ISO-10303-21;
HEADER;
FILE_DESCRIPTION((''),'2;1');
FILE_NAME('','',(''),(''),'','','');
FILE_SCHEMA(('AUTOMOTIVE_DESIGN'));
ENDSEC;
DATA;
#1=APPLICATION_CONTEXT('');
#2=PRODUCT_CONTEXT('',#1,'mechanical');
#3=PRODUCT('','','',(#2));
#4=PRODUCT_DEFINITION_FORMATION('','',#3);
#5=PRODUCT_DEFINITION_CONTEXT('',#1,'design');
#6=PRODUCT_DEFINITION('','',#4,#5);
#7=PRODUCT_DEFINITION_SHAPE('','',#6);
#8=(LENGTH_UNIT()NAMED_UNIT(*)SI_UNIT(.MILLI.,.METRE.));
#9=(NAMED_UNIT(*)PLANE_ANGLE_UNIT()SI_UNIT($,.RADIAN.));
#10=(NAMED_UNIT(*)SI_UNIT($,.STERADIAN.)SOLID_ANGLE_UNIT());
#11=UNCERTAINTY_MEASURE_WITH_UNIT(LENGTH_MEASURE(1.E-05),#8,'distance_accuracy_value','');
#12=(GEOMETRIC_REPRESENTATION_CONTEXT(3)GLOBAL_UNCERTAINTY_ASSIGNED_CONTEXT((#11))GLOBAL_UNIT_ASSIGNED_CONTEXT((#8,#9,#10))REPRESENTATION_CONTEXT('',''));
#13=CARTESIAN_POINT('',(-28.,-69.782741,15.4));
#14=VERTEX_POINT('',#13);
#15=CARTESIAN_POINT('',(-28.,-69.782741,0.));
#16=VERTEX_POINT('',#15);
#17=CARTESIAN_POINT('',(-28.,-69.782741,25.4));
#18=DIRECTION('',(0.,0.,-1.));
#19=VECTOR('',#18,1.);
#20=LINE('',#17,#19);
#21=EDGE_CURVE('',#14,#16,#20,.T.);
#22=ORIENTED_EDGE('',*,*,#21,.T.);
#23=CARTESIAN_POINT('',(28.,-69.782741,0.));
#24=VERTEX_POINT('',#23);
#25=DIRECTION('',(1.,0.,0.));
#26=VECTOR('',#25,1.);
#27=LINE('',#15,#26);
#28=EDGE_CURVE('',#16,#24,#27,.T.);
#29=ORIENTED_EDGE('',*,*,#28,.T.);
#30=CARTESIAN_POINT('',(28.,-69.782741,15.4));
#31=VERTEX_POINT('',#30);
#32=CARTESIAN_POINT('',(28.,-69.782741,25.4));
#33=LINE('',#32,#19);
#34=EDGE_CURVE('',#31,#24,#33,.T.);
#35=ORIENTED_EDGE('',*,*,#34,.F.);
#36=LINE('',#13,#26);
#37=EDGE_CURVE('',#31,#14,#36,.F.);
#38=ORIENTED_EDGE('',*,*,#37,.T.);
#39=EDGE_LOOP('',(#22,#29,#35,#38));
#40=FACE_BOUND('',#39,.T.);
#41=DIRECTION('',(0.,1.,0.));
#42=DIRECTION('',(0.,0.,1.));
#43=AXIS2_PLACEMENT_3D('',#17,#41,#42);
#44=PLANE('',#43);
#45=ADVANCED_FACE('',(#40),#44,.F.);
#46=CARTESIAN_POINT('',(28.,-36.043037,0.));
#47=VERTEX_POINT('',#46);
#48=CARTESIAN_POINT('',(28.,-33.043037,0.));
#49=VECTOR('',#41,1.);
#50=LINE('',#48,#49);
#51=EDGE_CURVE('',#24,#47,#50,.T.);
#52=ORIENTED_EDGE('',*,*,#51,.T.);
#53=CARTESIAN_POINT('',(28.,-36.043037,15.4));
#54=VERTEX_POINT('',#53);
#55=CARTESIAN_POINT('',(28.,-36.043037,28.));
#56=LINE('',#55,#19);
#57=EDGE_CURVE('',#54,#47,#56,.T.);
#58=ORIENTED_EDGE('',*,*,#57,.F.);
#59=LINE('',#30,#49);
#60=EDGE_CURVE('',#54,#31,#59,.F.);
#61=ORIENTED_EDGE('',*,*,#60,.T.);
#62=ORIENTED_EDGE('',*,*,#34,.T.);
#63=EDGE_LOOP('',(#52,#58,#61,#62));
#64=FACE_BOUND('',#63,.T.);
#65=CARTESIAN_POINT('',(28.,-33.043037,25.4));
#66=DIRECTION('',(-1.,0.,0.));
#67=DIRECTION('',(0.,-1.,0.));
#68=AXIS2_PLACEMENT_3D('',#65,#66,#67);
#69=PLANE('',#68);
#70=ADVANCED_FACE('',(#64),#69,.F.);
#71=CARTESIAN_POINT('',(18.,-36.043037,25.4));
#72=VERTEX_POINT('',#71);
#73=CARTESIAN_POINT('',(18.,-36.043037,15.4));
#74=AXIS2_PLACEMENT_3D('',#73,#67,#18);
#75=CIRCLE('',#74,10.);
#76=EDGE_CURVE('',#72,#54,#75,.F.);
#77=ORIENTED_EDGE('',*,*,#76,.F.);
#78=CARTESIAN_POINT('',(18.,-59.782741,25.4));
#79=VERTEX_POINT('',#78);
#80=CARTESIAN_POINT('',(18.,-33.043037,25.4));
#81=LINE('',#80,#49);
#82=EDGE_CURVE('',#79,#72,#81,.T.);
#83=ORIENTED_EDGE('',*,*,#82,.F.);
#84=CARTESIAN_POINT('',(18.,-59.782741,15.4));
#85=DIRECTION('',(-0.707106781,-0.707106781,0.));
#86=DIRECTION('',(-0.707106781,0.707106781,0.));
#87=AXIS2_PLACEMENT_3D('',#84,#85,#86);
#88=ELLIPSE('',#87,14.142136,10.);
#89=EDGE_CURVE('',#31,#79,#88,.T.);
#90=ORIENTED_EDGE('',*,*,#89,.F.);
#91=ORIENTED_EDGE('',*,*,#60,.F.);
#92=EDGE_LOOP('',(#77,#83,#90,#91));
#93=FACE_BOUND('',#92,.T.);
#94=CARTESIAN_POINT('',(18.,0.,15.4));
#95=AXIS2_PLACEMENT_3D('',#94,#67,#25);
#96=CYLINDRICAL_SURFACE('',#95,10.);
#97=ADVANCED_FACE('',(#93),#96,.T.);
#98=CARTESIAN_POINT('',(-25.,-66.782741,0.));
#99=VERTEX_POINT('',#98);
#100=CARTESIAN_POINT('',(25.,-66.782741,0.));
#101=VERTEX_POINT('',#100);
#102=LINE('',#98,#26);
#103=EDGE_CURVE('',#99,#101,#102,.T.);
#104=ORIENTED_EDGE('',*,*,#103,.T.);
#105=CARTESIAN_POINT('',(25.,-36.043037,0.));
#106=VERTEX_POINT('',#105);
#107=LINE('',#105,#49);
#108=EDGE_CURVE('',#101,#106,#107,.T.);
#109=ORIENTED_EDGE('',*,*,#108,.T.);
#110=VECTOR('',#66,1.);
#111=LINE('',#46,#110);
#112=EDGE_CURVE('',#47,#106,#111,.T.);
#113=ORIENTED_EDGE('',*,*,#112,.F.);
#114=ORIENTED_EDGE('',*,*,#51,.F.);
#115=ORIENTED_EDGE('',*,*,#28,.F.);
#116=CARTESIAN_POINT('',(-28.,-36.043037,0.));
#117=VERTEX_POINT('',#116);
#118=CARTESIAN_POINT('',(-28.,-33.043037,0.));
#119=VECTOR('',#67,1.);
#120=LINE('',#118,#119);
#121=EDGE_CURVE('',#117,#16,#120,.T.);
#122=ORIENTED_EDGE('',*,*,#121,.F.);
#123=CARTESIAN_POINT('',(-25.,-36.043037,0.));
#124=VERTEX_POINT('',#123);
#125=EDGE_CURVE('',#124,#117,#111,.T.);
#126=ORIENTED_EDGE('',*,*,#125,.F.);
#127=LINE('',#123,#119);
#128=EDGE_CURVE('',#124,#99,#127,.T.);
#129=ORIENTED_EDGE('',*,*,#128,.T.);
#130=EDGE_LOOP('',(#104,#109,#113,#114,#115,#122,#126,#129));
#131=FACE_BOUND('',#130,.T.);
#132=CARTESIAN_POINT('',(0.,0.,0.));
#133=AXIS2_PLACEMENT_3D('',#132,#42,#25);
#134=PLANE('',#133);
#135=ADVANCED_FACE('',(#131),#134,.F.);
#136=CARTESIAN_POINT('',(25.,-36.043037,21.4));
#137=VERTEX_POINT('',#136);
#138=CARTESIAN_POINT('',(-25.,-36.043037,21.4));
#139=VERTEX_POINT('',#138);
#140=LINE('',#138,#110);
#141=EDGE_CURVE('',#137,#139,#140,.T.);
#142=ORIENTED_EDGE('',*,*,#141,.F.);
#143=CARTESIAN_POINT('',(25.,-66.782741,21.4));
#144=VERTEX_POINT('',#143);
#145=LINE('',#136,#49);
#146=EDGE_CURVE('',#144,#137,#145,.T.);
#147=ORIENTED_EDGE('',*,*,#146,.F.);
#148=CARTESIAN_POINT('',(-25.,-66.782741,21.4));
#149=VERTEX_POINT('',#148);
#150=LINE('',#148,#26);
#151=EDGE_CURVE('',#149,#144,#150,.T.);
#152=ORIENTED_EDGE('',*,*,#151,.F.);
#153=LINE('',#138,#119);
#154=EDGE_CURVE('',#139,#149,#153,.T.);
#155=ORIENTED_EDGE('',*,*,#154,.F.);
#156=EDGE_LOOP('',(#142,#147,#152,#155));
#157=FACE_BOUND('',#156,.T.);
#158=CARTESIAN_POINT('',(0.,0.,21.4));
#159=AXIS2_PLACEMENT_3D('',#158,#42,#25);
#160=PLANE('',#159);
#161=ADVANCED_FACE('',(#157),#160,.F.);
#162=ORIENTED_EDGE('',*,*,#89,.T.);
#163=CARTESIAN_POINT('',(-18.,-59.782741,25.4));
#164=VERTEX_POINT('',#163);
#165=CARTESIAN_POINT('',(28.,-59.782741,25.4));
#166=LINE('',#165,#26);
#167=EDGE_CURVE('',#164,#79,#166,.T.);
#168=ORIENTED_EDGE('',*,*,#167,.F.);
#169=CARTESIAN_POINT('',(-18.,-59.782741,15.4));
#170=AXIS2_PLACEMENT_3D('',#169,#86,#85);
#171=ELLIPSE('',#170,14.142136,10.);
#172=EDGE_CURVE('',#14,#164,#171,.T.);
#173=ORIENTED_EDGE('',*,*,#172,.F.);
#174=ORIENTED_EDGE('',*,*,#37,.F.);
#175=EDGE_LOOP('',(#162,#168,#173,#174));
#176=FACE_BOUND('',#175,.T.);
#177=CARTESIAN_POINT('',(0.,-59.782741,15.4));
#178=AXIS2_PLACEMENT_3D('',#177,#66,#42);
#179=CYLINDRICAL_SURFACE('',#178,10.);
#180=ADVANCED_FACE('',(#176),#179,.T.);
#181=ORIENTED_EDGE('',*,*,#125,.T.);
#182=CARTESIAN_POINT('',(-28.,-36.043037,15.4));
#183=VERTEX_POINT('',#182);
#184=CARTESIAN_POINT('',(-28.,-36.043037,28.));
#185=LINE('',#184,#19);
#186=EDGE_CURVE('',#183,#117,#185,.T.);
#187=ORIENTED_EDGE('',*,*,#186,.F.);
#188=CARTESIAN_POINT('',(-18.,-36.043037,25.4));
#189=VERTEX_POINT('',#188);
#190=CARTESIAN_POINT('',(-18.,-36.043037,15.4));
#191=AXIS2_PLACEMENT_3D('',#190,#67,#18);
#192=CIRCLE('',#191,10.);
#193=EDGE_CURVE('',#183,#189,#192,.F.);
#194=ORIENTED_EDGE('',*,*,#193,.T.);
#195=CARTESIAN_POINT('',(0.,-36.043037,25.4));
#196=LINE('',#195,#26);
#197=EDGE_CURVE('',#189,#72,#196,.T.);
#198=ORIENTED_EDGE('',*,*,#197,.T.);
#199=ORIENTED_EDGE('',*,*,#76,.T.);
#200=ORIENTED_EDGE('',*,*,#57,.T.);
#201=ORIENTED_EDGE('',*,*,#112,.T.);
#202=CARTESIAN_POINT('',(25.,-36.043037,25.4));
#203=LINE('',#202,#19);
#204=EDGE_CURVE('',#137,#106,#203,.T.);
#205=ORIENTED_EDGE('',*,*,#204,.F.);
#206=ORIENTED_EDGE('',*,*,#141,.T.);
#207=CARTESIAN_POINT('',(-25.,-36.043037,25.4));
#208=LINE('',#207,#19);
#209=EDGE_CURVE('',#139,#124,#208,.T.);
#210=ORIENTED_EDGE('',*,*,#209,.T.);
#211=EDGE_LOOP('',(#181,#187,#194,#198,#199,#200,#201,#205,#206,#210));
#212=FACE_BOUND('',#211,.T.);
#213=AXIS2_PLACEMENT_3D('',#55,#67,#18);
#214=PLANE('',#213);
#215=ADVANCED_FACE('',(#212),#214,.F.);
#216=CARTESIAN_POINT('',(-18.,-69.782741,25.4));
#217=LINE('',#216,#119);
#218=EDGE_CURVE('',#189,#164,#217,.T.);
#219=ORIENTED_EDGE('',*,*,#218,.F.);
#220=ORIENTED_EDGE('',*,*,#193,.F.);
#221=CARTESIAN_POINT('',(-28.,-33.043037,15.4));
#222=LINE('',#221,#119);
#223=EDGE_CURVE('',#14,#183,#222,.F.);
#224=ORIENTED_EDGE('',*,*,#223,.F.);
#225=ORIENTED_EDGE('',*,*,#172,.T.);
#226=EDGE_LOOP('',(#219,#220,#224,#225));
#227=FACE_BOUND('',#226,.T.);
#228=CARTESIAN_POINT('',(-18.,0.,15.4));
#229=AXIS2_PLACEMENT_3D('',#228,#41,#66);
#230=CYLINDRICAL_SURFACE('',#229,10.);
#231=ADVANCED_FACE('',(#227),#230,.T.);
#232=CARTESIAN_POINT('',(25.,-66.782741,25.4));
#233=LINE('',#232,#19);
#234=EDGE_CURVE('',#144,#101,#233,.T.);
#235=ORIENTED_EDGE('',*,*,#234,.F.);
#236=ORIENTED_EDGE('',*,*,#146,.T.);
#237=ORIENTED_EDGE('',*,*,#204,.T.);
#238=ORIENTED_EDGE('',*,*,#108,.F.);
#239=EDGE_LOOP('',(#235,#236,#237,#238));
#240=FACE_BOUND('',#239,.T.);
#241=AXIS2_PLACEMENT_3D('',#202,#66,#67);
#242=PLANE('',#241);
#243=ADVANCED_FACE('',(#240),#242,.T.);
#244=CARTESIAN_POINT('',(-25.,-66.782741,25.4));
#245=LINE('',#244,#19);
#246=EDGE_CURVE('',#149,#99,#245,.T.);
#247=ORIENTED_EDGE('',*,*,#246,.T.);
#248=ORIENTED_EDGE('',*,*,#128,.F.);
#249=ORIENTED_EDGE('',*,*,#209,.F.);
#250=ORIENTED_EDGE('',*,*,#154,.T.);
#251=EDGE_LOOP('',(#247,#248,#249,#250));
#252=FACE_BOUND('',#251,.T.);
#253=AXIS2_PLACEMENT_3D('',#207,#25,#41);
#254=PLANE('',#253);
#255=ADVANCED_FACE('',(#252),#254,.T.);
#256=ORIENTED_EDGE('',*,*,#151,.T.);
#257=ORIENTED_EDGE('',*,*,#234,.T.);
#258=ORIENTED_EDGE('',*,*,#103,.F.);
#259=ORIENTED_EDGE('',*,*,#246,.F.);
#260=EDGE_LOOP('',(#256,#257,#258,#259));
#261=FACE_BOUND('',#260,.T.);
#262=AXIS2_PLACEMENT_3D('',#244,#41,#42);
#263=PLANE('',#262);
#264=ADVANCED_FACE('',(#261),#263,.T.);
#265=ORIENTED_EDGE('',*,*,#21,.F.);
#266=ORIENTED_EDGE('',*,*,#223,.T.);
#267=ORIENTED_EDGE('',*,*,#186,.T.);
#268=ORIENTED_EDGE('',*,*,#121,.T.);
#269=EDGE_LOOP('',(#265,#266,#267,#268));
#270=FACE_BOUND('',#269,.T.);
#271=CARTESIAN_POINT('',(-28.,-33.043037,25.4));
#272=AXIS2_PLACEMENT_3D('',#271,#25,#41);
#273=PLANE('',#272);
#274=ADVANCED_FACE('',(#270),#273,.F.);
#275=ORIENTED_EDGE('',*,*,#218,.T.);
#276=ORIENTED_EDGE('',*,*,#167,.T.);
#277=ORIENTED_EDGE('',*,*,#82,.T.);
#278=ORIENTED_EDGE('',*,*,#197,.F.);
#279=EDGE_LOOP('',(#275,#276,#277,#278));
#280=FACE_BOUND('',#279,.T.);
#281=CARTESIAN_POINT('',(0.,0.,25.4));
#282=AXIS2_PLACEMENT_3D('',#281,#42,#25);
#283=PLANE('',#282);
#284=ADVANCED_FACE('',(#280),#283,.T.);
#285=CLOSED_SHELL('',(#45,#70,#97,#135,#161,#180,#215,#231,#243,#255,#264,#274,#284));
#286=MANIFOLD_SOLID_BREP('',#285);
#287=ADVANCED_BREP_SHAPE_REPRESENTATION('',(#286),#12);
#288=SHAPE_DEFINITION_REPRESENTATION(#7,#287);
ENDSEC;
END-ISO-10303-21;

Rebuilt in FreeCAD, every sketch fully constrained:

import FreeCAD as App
import Part
import Sketcher
Q = App.Units.Quantity


def edges_at(feature, points):
    """Names of the edges that pass closest to the given points."""
    edges = feature.Shape.Edges
    near = lambda p: min(range(len(edges)), key=lambda i: edges[i].distToShape(Part.Vertex(*p))[0])
    return sorted({f"Edge{near(p) + 1}" for p in points})

doc = App.newDocument("Part")
body = doc.addObject("PartDesign::Body", "Body")

# Sketch on XY plane
sketch1 = body.newObject("Sketcher::SketchObject", "Sketch")
sketch1.AttachmentSupport = (doc.getObject("XY_Plane"), [""])
sketch1.MapMode = "FlatFace"
sketch1.addGeometry([
    Part.LineSegment(App.Vector(-28, -33, 0), App.Vector(-28, -70, 0)),  # 0
    Part.LineSegment(App.Vector(-28, -70, 0), App.Vector(28, -70, 0)),  # 1
    Part.LineSegment(App.Vector(28, -70, 0), App.Vector(28, -33, 0)),  # 2
    Part.LineSegment(App.Vector(28, -33, 0), App.Vector(-28, -33, 0)),  # 3
    Part.LineSegment(App.Vector(25, -67, 0), App.Vector(-25, -67, 0)),  # 4
    Part.LineSegment(App.Vector(-25, -67, 0), App.Vector(-25, -36, 0)),  # 5
    Part.LineSegment(App.Vector(-25, -36, 0), App.Vector(25, -36, 0)),  # 6
    Part.LineSegment(App.Vector(25, -36, 0), App.Vector(25, -67, 0)),  # 7
], False)
sketch1.addConstraint([
    Sketcher.Constraint("Coincident", 0, 2, 1, 1),
    Sketcher.Constraint("Coincident", 1, 2, 2, 1),
    Sketcher.Constraint("Coincident", 2, 2, 3, 1),
    Sketcher.Constraint("Coincident", 3, 2, 0, 1),
    Sketcher.Constraint("Coincident", 4, 2, 5, 1),
    Sketcher.Constraint("Coincident", 5, 2, 6, 1),
    Sketcher.Constraint("Coincident", 6, 2, 7, 1),
    Sketcher.Constraint("Coincident", 7, 2, 4, 1),
    Sketcher.Constraint("Vertical", 0),
    Sketcher.Constraint("Horizontal", 1),
    Sketcher.Constraint("Vertical", 2),
    Sketcher.Constraint("Horizontal", 3),
    Sketcher.Constraint("Horizontal", 4),
    Sketcher.Constraint("Vertical", 5),
    Sketcher.Constraint("Horizontal", 6),
    Sketcher.Constraint("Vertical", 7),
    Sketcher.Constraint("DistanceX", 1, 1, 1, 2, Q("56 mm")),
    Sketcher.Constraint("DistanceX", 4, 2, 4, 1, Q("50 mm")),
    Sketcher.Constraint("DistanceX", 0, 2, -1, 1, Q("28 mm")),
    Sketcher.Constraint("DistanceX", 4, 2, -1, 1, Q("25 mm")),
    Sketcher.Constraint("DistanceY", 0, 2, 4, 2, Q("3 mm")),
    Sketcher.Constraint("DistanceY", 5, 2, 3, 2, Q("3 mm")),
    Sketcher.Constraint("DistanceY", 0, 2, 0, 1, Q("36.739704 mm")),
    Sketcher.Constraint("DistanceY", 0, 2, -1, 1, Q("69.782741 mm")),
])
pad1 = body.newObject("PartDesign::Pad", "Pad")
pad1.Profile = sketch1
pad1.Length = 25.4

# Sketch on XY plane
sketch2 = body.newObject("Sketcher::SketchObject", "Sketch001")
sketch2.AttachmentSupport = (doc.getObject("XY_Plane"), [""])
sketch2.MapMode = "FlatFace"
sketch2.AttachmentOffset = App.Placement(App.Vector(0, 0, 25.4), App.Rotation())
sketch2.addGeometry([
    Part.LineSegment(App.Vector(-28, -33, 0), App.Vector(-28, -70, 0)),
    Part.LineSegment(App.Vector(-28, -70, 0), App.Vector(28, -70, 0)),
    Part.LineSegment(App.Vector(28, -70, 0), App.Vector(28, -33, 0)),
    Part.LineSegment(App.Vector(28, -33, 0), App.Vector(-28, -33, 0)),
], False)
sketch2.addConstraint([
    Sketcher.Constraint("Coincident", 0, 2, 1, 1),
    Sketcher.Constraint("Coincident", 1, 2, 2, 1),
    Sketcher.Constraint("Coincident", 2, 2, 3, 1),
    Sketcher.Constraint("Coincident", 3, 2, 0, 1),
    Sketcher.Constraint("Vertical", 0),
    Sketcher.Constraint("Horizontal", 1),
    Sketcher.Constraint("Vertical", 2),
    Sketcher.Constraint("Horizontal", 3),
    Sketcher.Constraint("DistanceX", 1, 1, 1, 2, Q("56 mm")),
    Sketcher.Constraint("DistanceX", 0, 2, -1, 1, Q("28 mm")),
    Sketcher.Constraint("DistanceY", 0, 2, 0, 1, Q("36.739704 mm")),
    Sketcher.Constraint("DistanceY", 0, 2, -1, 1, Q("69.782741 mm")),
])
pad2 = body.newObject("PartDesign::Pad", "Pad001")
pad2.Profile = sketch2
pad2.Length = 4
pad2.Reversed = True
doc.recompute()

fillet = body.newObject("PartDesign::Fillet", "Fillet")
fillet.Base = (pad2, edges_at(pad2, [(28, -51.413, 25.4), (-28, -51.413, 25.4), (0, -69.783, 25.4)]))
fillet.Radius = 10

# Sketch on XY plane
sketch3 = body.newObject("Sketcher::SketchObject", "Sketch002")
sketch3.AttachmentSupport = (doc.getObject("XY_Plane"), [""])
sketch3.MapMode = "FlatFace"
sketch3.addGeometry([
    Part.LineSegment(App.Vector(28, -33, 0), App.Vector(28, -36, 0)),
    Part.LineSegment(App.Vector(28, -36, 0), App.Vector(-28, -36, 0)),
    Part.LineSegment(App.Vector(-28, -36, 0), App.Vector(-28, -33, 0)),
    Part.LineSegment(App.Vector(-28, -33, 0), App.Vector(28, -33, 0)),
], False)
sketch3.addConstraint([
    Sketcher.Constraint("Coincident", 0, 2, 1, 1),
    Sketcher.Constraint("Coincident", 1, 2, 2, 1),
    Sketcher.Constraint("Coincident", 2, 2, 3, 1),
    Sketcher.Constraint("Coincident", 3, 2, 0, 1),
    Sketcher.Constraint("Vertical", 0),
    Sketcher.Constraint("Horizontal", 1),
    Sketcher.Constraint("Vertical", 2),
    Sketcher.Constraint("Horizontal", 3),
    Sketcher.Constraint("DistanceX", 1, 2, 1, 1, Q("56 mm")),
    Sketcher.Constraint("DistanceY", 0, 2, 0, 1, Q("3 mm")),
    Sketcher.Constraint("DistanceX", -1, 1, 0, 2, Q("28 mm")),
    Sketcher.Constraint("DistanceY", 0, 2, -1, 1, Q("36.043037 mm")),
])
pocket1 = body.newObject("PartDesign::Pocket", "Pocket")
pocket1.Profile = sketch3
pocket1.Length = 28
pocket1.Reversed = True

doc.recompute()
